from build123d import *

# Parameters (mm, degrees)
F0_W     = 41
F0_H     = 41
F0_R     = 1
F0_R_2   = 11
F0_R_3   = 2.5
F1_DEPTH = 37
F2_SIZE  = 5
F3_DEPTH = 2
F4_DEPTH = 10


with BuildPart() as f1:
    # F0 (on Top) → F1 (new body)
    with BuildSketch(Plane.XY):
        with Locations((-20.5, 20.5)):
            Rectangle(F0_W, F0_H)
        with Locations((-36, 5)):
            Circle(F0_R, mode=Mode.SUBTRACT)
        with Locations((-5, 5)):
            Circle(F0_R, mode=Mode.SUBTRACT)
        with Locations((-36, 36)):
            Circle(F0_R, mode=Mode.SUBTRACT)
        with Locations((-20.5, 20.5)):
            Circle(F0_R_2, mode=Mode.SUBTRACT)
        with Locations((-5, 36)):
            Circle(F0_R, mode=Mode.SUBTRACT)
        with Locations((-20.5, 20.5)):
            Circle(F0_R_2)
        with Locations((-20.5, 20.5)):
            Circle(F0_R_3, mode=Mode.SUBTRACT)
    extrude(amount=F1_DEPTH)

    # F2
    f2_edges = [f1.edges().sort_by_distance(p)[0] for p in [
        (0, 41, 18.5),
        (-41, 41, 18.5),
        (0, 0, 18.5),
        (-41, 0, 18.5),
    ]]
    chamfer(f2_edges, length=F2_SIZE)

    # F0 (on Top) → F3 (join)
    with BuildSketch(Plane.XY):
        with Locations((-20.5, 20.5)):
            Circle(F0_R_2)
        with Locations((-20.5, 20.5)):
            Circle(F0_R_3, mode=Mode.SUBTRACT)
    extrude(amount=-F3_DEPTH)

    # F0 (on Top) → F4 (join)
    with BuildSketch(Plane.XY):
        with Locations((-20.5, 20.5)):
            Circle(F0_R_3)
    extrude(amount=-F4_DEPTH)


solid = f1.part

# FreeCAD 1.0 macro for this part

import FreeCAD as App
import Part
import Sketcher

V = App.Vector


def edges_at(feature, points):
    """Names of the edges that pass closest to the given points."""
    edges = feature.Shape.Edges
    near = lambda p: min(range(len(edges)), key=lambda i: edges[i].distToShape(Part.Vertex(*p))[0])
    return sorted({f"Edge{near(p) + 1}" for p in points})

doc = App.newDocument("Part")
body = doc.addObject("PartDesign::Body", "Body")

sketch1 = body.newObject("Sketcher::SketchObject", "Sketch")
sketch1.AttachmentSupport = (doc.getObject("XY_Plane"), [""])
sketch1.MapMode = "FlatFace"
sketch1.addGeometry([
    Part.LineSegment(V(-41, 41, 0), V(-41, 0, 0)),
    Part.LineSegment(V(-41, 0, 0), V(0, 0, 0)),
    Part.LineSegment(V(0, 0, 0), V(0, 41, 0)),
    Part.LineSegment(V(0, 41, 0), V(-41, 41, 0)),
    Part.Circle(V(-36, 5, 0), V(0, 0, 1), 1),
    Part.Circle(V(-5, 5, 0), V(0, 0, 1), 1),
    Part.Circle(V(-36, 36, 0), V(0, 0, 1), 1),
    Part.Circle(V(-20.5, 20.5, 0), V(0, 0, 1), 2.5),
    Part.Circle(V(-5, 36, 0), V(0, 0, 1), 1),
], False)
sketch1.addConstraint([
    Sketcher.Constraint("Coincident", 0, 2, 1, 1),
    Sketcher.Constraint("Coincident", 1, 2, 2, 1),
    Sketcher.Constraint("Coincident", 2, 2, 3, 1),
    Sketcher.Constraint("Coincident", 3, 2, 0, 1),
    Sketcher.Constraint("Vertical", 0),
    Sketcher.Constraint("Horizontal", 1),
    Sketcher.Constraint("Vertical", 2),
    Sketcher.Constraint("Horizontal", 3),
    Sketcher.Constraint("Coincident", 1, 2, -1, 1),
    Sketcher.Constraint("Equal", 4, 5),
    Sketcher.Constraint("Equal", 5, 6),
    Sketcher.Constraint("Equal", 6, 8),
    Sketcher.Constraint("Horizontal", 4, 3, 5, 3),
    Sketcher.Constraint("Horizontal", 6, 3, 8, 3),
    Sketcher.Constraint("Vertical", 4, 3, 6, 3),
    Sketcher.Constraint("Vertical", 5, 3, 8, 3),
    Sketcher.Constraint("Equal", 3, 0),
    Sketcher.Constraint("Diameter", 4, 2.0),
    Sketcher.Constraint("Diameter", 7, 5.0),
    Sketcher.Constraint("DistanceX", 1, 1, 1, 2, 41.0),
    Sketcher.Constraint("DistanceX", 4, 3, -1, 1, 36.0),
    Sketcher.Constraint("DistanceY", -1, 1, 4, 3, 5.0),
    Sketcher.Constraint("DistanceX", 5, 3, -1, 1, 5.0),
    Sketcher.Constraint("DistanceY", -1, 1, 6, 3, 36.0),
    Sketcher.Constraint("DistanceX", 7, 3, -1, 1, 20.5),
    Sketcher.Constraint("DistanceY", -1, 1, 7, 3, 20.5),
])
pad1 = body.newObject("PartDesign::Pad", "Pad")
pad1.Profile = sketch1
pad1.Length = 37
doc.recompute()

chamfer = body.newObject("PartDesign::Chamfer", "Chamfer")
chamfer.Base = (pad1, edges_at(pad1, [
    (0, 41, 18.5),
    (-41, 41, 18.5),
    (0, 0, 18.5),
    (-41, 0, 18.5),
]))
chamfer.Size = 5

sketch2 = body.newObject("Sketcher::SketchObject", "Sketch001")
sketch2.AttachmentSupport = (doc.getObject("XY_Plane"), [""])
sketch2.MapMode = "FlatFace"
sketch2.addGeometry([
    Part.Circle(V(-20.5, 20.5, 0), V(0, 0, 1), 11),
    Part.Circle(V(-20.5, 20.5, 0), V(0, 0, 1), 2.5),
], False)
sketch2.addConstraint([
    Sketcher.Constraint("Coincident", 1, 3, 0, 3),
    Sketcher.Constraint("Diameter", 0, 22.0),
    Sketcher.Constraint("Diameter", 1, 5.0),
    Sketcher.Constraint("DistanceX", 0, 3, -1, 1, 20.5),
    Sketcher.Constraint("DistanceY", -1, 1, 0, 3, 20.5),
])
pad2 = body.newObject("PartDesign::Pad", "Pad001")
pad2.Profile = sketch2
pad2.Length = 2
pad2.Reversed = True

sketch3 = body.newObject("Sketcher::SketchObject", "Sketch002")
sketch3.AttachmentSupport = (doc.getObject("XY_Plane"), [""])
sketch3.MapMode = "FlatFace"
sketch3.addGeometry(Part.Circle(V(-20.5, 20.5, 0), V(0, 0, 1), 2.5), False)
sketch3.addConstraint([
    Sketcher.Constraint("Diameter", 0, 5.0),
    Sketcher.Constraint("DistanceX", 0, 3, -1, 1, 20.5),
    Sketcher.Constraint("DistanceY", -1, 1, 0, 3, 20.5),
])
pad3 = body.newObject("PartDesign::Pad", "Pad002")
pad3.Profile = sketch3
pad3.Length = 10
pad3.Reversed = True

doc.recompute()
